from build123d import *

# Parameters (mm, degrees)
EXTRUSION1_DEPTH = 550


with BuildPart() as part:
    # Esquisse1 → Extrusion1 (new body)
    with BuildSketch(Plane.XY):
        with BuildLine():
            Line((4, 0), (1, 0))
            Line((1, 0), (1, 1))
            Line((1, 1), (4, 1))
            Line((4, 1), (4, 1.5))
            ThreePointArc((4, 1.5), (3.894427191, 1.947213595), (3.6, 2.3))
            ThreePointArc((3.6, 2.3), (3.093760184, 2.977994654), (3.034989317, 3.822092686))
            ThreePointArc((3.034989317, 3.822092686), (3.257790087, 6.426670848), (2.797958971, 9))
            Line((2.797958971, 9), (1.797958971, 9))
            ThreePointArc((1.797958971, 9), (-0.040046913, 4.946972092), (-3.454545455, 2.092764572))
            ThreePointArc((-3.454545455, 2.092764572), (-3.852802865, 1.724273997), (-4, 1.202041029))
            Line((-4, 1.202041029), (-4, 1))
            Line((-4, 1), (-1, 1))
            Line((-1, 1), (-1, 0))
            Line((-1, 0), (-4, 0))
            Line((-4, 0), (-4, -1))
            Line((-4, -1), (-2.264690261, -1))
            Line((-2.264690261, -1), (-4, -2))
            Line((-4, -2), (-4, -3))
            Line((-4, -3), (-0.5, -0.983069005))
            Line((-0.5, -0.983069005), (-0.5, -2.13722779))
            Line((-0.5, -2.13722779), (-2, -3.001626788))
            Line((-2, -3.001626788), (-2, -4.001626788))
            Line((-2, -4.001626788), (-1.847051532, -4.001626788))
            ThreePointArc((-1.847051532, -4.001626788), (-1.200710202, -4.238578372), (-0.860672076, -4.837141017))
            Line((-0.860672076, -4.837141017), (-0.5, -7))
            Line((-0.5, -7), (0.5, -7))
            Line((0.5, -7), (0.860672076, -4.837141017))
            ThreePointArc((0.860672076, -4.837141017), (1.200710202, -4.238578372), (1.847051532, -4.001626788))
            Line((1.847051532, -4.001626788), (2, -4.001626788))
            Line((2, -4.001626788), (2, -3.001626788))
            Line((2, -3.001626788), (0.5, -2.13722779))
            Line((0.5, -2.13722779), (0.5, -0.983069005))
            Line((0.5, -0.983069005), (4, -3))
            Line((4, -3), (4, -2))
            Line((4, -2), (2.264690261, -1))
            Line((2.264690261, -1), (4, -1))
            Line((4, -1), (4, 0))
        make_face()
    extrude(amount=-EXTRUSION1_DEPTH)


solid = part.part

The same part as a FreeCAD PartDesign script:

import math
import FreeCAD as App
import Part
import Sketcher

V = App.Vector

doc = App.newDocument("Part")
body = doc.addObject("PartDesign::Body", "Body")

sketch1 = body.newObject("Sketcher::SketchObject", "Sketch")
sketch1.AttachmentSupport = (doc.getObject("XY_Plane"), [""])
sketch1.MapMode = "FlatFace"
sketch1.addGeometry(Part.LineSegment(V(4, 0, 0), V(1, 0, 0)), False)
sketch1.addGeometry(Part.LineSegment(V(1, 0, 0), V(1, 1, 0)), False)
sketch1.addGeometry(Part.LineSegment(V(1, 1, 0), V(4, 1, 0)), False)
sketch1.addGeometry(Part.LineSegment(V(4, 1, 0), V(4, 1.5, 0)), False)
sketch1.addGeometry(Part.ArcOfCircle(Part.Circle(V(3, 1.5, 0), V(0, 0, 1), 1), math.radians(0), math.radians(53)), False)
sketch1.addGeometry(Part.ArcOfCircle(Part.Circle(V(4.5, 3.5, 0), V(0, 0, 1), 1.5), math.radians(168), math.radians(233)), False)
sketch1.addGeometry(Part.ArcOfCircle(Part.Circle(V(-6.73, 5.97, 0), V(0, 0, 1), 10), math.radians(-12), math.radians(18)), False)
sketch1.addGeometry(Part.LineSegment(V(2.8, 9, 0), V(1.8, 9, 0)), False)
sketch1.addGeometry(Part.ArcOfCircle(Part.Circle(V(-8, 11, 0), V(0, 0, 1), 10), math.radians(-63), math.radians(-12)), False)
sketch1.addGeometry(Part.ArcOfCircle(Part.Circle(V(-3, 1.2, 0), V(0, 0, 1), 1), math.radians(117), math.radians(180)), False)
sketch1.addGeometry(Part.LineSegment(V(-4, 1.2, 0), V(-4, 1, 0)), False)
sketch1.addGeometry(Part.LineSegment(V(-4, 1, 0), V(-1, 1, 0)), False)
sketch1.addGeometry(Part.LineSegment(V(-1, 1, 0), V(-1, 0, 0)), False)
sketch1.addGeometry(Part.LineSegment(V(-1, 0, 0), V(-4, 0, 0)), False)
sketch1.addGeometry(Part.LineSegment(V(-4, 0, 0), V(-4, -1, 0)), False)
sketch1.addGeometry(Part.LineSegment(V(-4, -1, 0), V(-2.26, -1, 0)), False)
sketch1.addGeometry(Part.LineSegment(V(-2.26, -1, 0), V(-4, -2, 0)), False)
sketch1.addGeometry(Part.LineSegment(V(-4, -2, 0), V(-4, -3, 0)), False)
sketch1.addGeometry(Part.LineSegment(V(-4, -3, 0), V(-0.5, -0.98, 0)), False)
sketch1.addGeometry(Part.LineSegment(V(-0.5, -0.98, 0), V(-0.5, -2.14, 0)), False)
sketch1.addGeometry(Part.LineSegment(V(-0.5, -2.14, 0), V(-2, -3, 0)), False)
sketch1.addGeometry(Part.LineSegment(V(-2, -3, 0), V(-2, -4, 0)), False)
sketch1.addGeometry(Part.LineSegment(V(-2, -4, 0), V(-1.85, -4, 0)), False)
sketch1.addGeometry(Part.ArcOfCircle(Part.Circle(V(-1.85, -5, 0), V(0, 0, 1), 1), math.radians(9), math.radians(90)), False)
sketch1.addGeometry(Part.LineSegment(V(-0.86, -4.84, 0), V(-0.5, -7, 0)), False)
sketch1.addGeometry(Part.LineSegment(V(-0.5, -7, 0), V(0.5, -7, 0)), False)
sketch1.addGeometry(Part.LineSegment(V(0.5, -7, 0), V(0.86, -4.84, 0)), False)
sketch1.addGeometry(Part.ArcOfCircle(Part.Circle(V(1.85, -5, 0), V(0, 0, 1), 1), math.radians(90), math.radians(171)), False)
sketch1.addGeometry(Part.LineSegment(V(1.85, -4, 0), V(2, -4, 0)), False)
sketch1.addGeometry(Part.LineSegment(V(2, -4, 0), V(2, -3, 0)), False)
sketch1.addGeometry(Part.LineSegment(V(2, -3, 0), V(0.5, -2.14, 0)), False)
sketch1.addGeometry(Part.LineSegment(V(0.5, -2.14, 0), V(0.5, -0.98, 0)), False)
sketch1.addGeometry(Part.LineSegment(V(0.5, -0.98, 0), V(4, -3, 0)), False)
sketch1.addGeometry(Part.LineSegment(V(4, -3, 0), V(4, -2, 0)), False)
sketch1.addGeometry(Part.LineSegment(V(4, -2, 0), V(2.26, -1, 0)), False)
sketch1.addGeometry(Part.LineSegment(V(2.26, -1, 0), V(4, -1, 0)), False)
sketch1.addGeometry(Part.LineSegment(V(4, -1, 0), V(4, 0, 0)), False)
sketch1.addConstraint(Sketcher.Constraint("Coincident", 0, 2, 1, 1))
sketch1.addConstraint(Sketcher.Constraint("Coincident", 1, 2, 2, 1))
sketch1.addConstraint(Sketcher.Constraint("Coincident", 2, 2, 3, 1))
sketch1.addConstraint(Sketcher.Constraint("Tangent", 3, 2, 4, 1))
sketch1.addConstraint(Sketcher.Constraint("Tangent", 4, 2, 5, 2))
sketch1.addConstraint(Sketcher.Constraint("Tangent", 5, 1, 6, 1))
sketch1.addConstraint(Sketcher.Constraint("Coincident", 6, 2, 7, 1))
sketch1.addConstraint(Sketcher.Constraint("Coincident", 7, 2, 8, 2))
sketch1.addConstraint(Sketcher.Constraint("Tangent", 8, 1, 9, 1))
sketch1.addConstraint(Sketcher.Constraint("Tangent", 9, 2, 10, 1))
sketch1.addConstraint(Sketcher.Constraint("Coincident", 10, 2, 11, 1))
sketch1.addConstraint(Sketcher.Constraint("Coincident", 11, 2, 12, 1))
sketch1.addConstraint(Sketcher.Constraint("Coincident", 12, 2, 13, 1))
sketch1.addConstraint(Sketcher.Constraint("Coincident", 13, 2, 14, 1))
sketch1.addConstraint(Sketcher.Constraint("Coincident", 14, 2, 15, 1))
sketch1.addConstraint(Sketcher.Constraint("Coincident", 15, 2, 16, 1))
sketch1.addConstraint(Sketcher.Constraint("Coincident", 16, 2, 17, 1))
sketch1.addConstraint(Sketcher.Constraint("Coincident", 17, 2, 18, 1))
sketch1.addConstraint(Sketcher.Constraint("Coincident", 18, 2, 19, 1))
sketch1.addConstraint(Sketcher.Constraint("Coincident", 19, 2, 20, 1))
sketch1.addConstraint(Sketcher.Constraint("Coincident", 20, 2, 21, 1))
sketch1.addConstraint(Sketcher.Constraint("Coincident", 21, 2, 22, 1))
sketch1.addConstraint(Sketcher.Constraint("Tangent", 22, 2, 23, 2))
sketch1.addConstraint(Sketcher.Constraint("Tangent", 23, 1, 24, 1))
sketch1.addConstraint(Sketcher.Constraint("Coincident", 24, 2, 25, 1))
sketch1.addConstraint(Sketcher.Constraint("Coincident", 25, 2, 26, 1))
sketch1.addConstraint(Sketcher.Constraint("Tangent", 26, 2, 27, 2))
sketch1.addConstraint(Sketcher.Constraint("Tangent", 27, 1, 28, 1))
sketch1.addConstraint(Sketcher.Constraint("Coincident", 28, 2, 29, 1))
sketch1.addConstraint(Sketcher.Constraint("Coincident", 29, 2, 30, 1))
sketch1.addConstraint(Sketcher.Constraint("Coincident", 30, 2, 31, 1))
sketch1.addConstraint(Sketcher.Constraint("Coincident", 31, 2, 32, 1))
sketch1.addConstraint(Sketcher.Constraint("Coincident", 32, 2, 33, 1))
sketch1.addConstraint(Sketcher.Constraint("Coincident", 33, 2, 34, 1))
sketch1.addConstraint(Sketcher.Constraint("Coincident", 34, 2, 35, 1))
sketch1.addConstraint(Sketcher.Constraint("Coincident", 35, 2, 36, 1))
sketch1.addConstraint(Sketcher.Constraint("Coincident", 36, 2, 0, 1))
sketch1.addConstraint(Sketcher.Constraint("Horizontal", 0))
sketch1.addConstraint(Sketcher.Constraint("Vertical", 1))
sketch1.addConstraint(Sketcher.Constraint("Horizontal", 2))
sketch1.addConstraint(Sketcher.Constraint("Vertical", 3))
sketch1.addConstraint(Sketcher.Constraint("Horizontal", 7))
sketch1.addConstraint(Sketcher.Constraint("Vertical", 10))
sketch1.addConstraint(Sketcher.Constraint("Horizontal", 11))
sketch1.addConstraint(Sketcher.Constraint("Vertical", 12))
sketch1.addConstraint(Sketcher.Constraint("Horizontal", 13))
sketch1.addConstraint(Sketcher.Constraint("Vertical", 14))
sketch1.addConstraint(Sketcher.Constraint("Horizontal", 15))
sketch1.addConstraint(Sketcher.Constraint("Vertical", 17))
sketch1.addConstraint(Sketcher.Constraint("Vertical", 19))
sketch1.addConstraint(Sketcher.Constraint("Vertical", 21))
sketch1.addConstraint(Sketcher.Constraint("Horizontal", 22))
sketch1.addConstraint(Sketcher.Constraint("Horizontal", 25))
sketch1.addConstraint(Sketcher.Constraint("Horizontal", 28))
sketch1.addConstraint(Sketcher.Constraint("Vertical", 29))
sketch1.addConstraint(Sketcher.Constraint("Vertical", 31))
sketch1.addConstraint(Sketcher.Constraint("Vertical", 33))
sketch1.addConstraint(Sketcher.Constraint("Horizontal", 35))
sketch1.addConstraint(Sketcher.Constraint("Vertical", 36))
sketch1.addConstraint(Sketcher.Constraint("Equal", 6, 8))
sketch1.addConstraint(Sketcher.Constraint("Equal", 4, 9))
sketch1.addConstraint(Sketcher.Constraint("Equal", 9, 23))
sketch1.addConstraint(Sketcher.Constraint("Equal", 23, 27))
sketch1.addConstraint(Sketcher.Constraint("Symmetric", 0, 2, 12, 2, -1, 1))
sketch1.addConstraint(Sketcher.Constraint("Symmetric", 2, 2, 14, 2, -1, 1))
sketch1.addConstraint(Sketcher.Constraint("Symmetric", 10, 2, 35, 2, -1, 1))
sketch1.addConstraint(Sketcher.Constraint("Symmetric", 23, 3, 27, 3, -2))
sketch1.addConstraint(Sketcher.Constraint("Symmetric", 2, 2, 10, 2, -2))
sketch1.addConstraint(Sketcher.Constraint("Symmetric", 20, 2, 29, 2, -2))
sketch1.addConstraint(Sketcher.Constraint("Symmetric", 19, 2, 30, 2, -2))
sketch1.addConstraint(Sketcher.Constraint("Symmetric", 17, 2, 32, 2, -2))
sketch1.addConstraint(Sketcher.Constraint("PointOnObject", 0, 2, -1))
sketch1.addConstraint(Sketcher.Constraint("Parallel", 16, 18))
sketch1.addConstraint(Sketcher.Constraint("Parallel", 18, 20))
sketch1.addConstraint(Sketcher.Constraint("Parallel", 30, 32))
sketch1.addConstraint(Sketcher.Constraint("Parallel", 32, 34))
sketch1.addConstraint(Sketcher.Constraint("Horizontal", 23, 1, 26, 2))
sketch1.addConstraint(Sketcher.Constraint("Horizontal", 16, 2, 33, 2))
sketch1.addConstraint(Sketcher.Constraint("Vertical", 14, 2, 16, 2))
sketch1.addConstraint(Sketcher.Constraint("Vertical", 19, 2, 24, 2))
sketch1.addConstraint(Sketcher.Constraint("Equal", 7, 25))
sketch1.addConstraint(Sketcher.Constraint("Equal", 25, 1))
sketch1.addConstraint(Sketcher.Constraint("Equal", 14, 17))
sketch1.addConstraint(Sketcher.Constraint("Equal", 17, 21))
sketch1.addConstraint(Sketcher.Constraint("Radius", 4, 1.0))
sketch1.addConstraint(Sketcher.Constraint("Radius", 6, 10.0))
sketch1.addConstraint(Sketcher.Constraint("Radius", 5, 1.5))
sketch1.addConstraint(Sketcher.Constraint("DistanceX", 0, 2, 0, 1, 3.0))
sketch1.addConstraint(Sketcher.Constraint("DistanceX", 7, 2, 7, 1, 1.0))
sketch1.addConstraint(Sketcher.Constraint("DistanceY", 3, 1, 3, 2, 0.5))
sketch1.addConstraint(Sketcher.Constraint("DistanceX", -1, 1, 4, 3, 3.0))
sketch1.addConstraint(Sketcher.Constraint("DistanceX", 8, 3, -1, 1, 8.0))
sketch1.addConstraint(Sketcher.Constraint("DistanceY", -1, 1, 8, 3, 11.0))
sketch1.addConstraint(Sketcher.Constraint("DistanceY", -1, 1, 6, 2, 9.0))
sketch1.addConstraint(Sketcher.Constraint("DistanceY", 16, 2, -1, 1, 2.0))
sketch1.addConstraint(Sketcher.Constraint("DistanceX", 20, 2, -1, 1, 2.0))
sketch1.addConstraint(Sketcher.Constraint("DistanceY", 24, 2, -1, 1, 7.0))
sketch1.addConstraint(Sketcher.Constraint("DistanceY", 4, 3, 5, 3, 2.0))
sketch1.addConstraint(Sketcher.Constraint("DistanceX", 15, 1, 15, 2, 1.73531))
sketch1.addConstraint(Sketcher.Constraint("DistanceX", 22, 1, 22, 2, 0.152948))
sketch1.addConstraint(Sketcher.Constraint("DistanceY", 19, 2, 19, 1, 1.154159))
pad1 = body.newObject("PartDesign::Pad", "Pad")
pad1.Profile = sketch1
pad1.Length = 550
pad1.Reversed = True

doc.recompute()
